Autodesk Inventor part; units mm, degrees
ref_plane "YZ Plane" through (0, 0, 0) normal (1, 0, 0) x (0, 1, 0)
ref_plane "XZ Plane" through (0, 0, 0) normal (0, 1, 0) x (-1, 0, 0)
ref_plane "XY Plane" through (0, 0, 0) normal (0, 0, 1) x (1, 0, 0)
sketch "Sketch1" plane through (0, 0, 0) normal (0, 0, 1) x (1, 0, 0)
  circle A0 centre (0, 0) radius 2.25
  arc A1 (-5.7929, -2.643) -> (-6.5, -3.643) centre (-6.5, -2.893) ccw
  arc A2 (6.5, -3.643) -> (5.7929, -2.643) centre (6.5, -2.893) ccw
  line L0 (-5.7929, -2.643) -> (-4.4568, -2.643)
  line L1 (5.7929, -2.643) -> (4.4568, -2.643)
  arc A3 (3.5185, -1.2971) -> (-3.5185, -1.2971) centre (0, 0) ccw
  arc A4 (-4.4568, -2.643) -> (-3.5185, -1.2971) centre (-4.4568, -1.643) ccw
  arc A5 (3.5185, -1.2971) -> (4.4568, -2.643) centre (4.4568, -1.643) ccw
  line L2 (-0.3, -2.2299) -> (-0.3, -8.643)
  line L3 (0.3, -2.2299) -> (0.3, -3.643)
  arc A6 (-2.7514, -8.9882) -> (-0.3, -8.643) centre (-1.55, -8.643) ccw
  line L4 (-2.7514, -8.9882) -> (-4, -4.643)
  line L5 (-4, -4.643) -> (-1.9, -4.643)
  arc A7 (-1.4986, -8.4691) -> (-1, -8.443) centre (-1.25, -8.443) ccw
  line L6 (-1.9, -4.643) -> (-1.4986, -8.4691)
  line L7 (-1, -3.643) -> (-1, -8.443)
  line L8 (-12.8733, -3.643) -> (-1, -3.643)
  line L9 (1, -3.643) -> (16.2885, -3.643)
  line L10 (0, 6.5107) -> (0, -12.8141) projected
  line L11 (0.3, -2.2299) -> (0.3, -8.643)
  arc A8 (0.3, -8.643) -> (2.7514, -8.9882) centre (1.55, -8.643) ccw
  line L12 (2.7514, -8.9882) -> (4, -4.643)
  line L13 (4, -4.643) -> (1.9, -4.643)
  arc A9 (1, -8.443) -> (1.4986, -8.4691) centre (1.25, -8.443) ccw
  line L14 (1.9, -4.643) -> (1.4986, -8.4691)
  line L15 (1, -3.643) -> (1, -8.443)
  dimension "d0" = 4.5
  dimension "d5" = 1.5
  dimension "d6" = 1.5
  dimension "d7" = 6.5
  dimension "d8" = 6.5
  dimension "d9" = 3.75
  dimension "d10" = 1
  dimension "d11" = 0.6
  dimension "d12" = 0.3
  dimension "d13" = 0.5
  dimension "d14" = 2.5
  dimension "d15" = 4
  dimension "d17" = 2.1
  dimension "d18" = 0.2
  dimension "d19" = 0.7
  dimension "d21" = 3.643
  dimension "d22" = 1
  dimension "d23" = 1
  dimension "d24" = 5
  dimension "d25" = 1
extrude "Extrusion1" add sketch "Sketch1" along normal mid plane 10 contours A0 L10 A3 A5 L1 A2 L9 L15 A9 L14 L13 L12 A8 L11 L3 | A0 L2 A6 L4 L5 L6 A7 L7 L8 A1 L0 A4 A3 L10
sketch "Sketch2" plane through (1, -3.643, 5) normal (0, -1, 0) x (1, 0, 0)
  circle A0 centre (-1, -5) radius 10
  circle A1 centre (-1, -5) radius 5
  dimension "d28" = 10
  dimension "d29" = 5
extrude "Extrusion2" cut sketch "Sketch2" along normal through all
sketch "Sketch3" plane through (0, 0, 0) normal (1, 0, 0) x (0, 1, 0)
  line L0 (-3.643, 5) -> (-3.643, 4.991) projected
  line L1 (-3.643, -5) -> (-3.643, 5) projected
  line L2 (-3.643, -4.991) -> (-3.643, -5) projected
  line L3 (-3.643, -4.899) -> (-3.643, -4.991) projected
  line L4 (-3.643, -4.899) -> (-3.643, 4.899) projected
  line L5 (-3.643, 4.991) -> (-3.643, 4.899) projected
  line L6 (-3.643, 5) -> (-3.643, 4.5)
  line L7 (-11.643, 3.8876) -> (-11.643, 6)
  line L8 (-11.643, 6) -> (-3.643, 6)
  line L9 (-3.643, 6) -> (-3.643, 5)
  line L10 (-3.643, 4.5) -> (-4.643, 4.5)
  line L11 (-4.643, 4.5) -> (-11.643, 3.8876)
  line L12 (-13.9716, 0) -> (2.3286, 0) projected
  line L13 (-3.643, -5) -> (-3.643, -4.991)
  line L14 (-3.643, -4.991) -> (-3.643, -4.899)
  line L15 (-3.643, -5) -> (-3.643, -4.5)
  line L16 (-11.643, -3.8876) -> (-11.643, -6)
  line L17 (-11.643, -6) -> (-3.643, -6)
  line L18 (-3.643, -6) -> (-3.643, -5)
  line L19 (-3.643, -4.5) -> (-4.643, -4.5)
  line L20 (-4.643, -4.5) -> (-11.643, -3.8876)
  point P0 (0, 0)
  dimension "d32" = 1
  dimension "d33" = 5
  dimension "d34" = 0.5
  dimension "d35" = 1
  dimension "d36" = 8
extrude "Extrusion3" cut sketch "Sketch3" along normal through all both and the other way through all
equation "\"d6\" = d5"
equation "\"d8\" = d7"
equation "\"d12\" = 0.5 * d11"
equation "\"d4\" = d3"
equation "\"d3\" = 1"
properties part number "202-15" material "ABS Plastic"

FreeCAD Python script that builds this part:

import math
import FreeCAD as App
import Part
import Sketcher
Q = App.Units.Quantity

doc = App.newDocument("Part")
body = doc.addObject("PartDesign::Body", "Body")

# Sketch on XY plane
sketch1 = body.newObject("Sketcher::SketchObject", "Sketch")
sketch1.AttachmentSupport = (doc.getObject("XY_Plane"), [""])
sketch1.MapMode = "FlatFace"
sketch1.addGeometry([
    Part.LineSegment(App.Vector(0.3, -2.23, 0), App.Vector(0.3, -8.64, 0)),  # 0
    Part.ArcOfCircle(Part.Circle(App.Vector(1.55, -8.64, 0), App.Vector(0, 0, 1), 1.25), math.radians(180), math.radians(344)),  # 1
    Part.LineSegment(App.Vector(2.75, -8.99, 0), App.Vector(4, -4.64, 0)),  # 2
    Part.LineSegment(App.Vector(4, -4.64, 0), App.Vector(1.9, -4.64, 0)),  # 3
    Part.LineSegment(App.Vector(1.9, -4.64, 0), App.Vector(1.5, -8.47, 0)),  # 4
    Part.ArcOfCircle(Part.Circle(App.Vector(1.25, -8.44, 0), App.Vector(0, 0, 1), 0.25), math.radians(180), math.radians(354)),  # 5
    Part.LineSegment(App.Vector(1, -8.44, 0), App.Vector(1, -3.64, 0)),  # 6
    Part.LineSegment(App.Vector(1, -3.64, 0), App.Vector(6.5, -3.64, 0)),  # 7
    Part.ArcOfCircle(Part.Circle(App.Vector(6.5, -2.89, 0), App.Vector(0, 0, 1), 0.75), math.radians(-90), math.radians(161)),  # 8
    Part.LineSegment(App.Vector(5.79, -2.64, 0), App.Vector(4.46, -2.64, 0)),  # 9
    Part.ArcOfCircle(Part.Circle(App.Vector(4.46, -1.64, 0), App.Vector(0, 0, 1), 1), math.radians(160), math.radians(270)),  # 10
    Part.ArcOfCircle(Part.Circle(App.Vector(0, 0, 0), App.Vector(0, 0, 1), 3.75), math.radians(-20), math.radians(200)),  # 11
    Part.ArcOfCircle(Part.Circle(App.Vector(-4.46, -1.64, 0), App.Vector(0, 0, 1), 1), math.radians(-90), math.radians(20)),  # 12
    Part.LineSegment(App.Vector(-4.46, -2.64, 0), App.Vector(-5.79, -2.64, 0)),  # 13
    Part.ArcOfCircle(Part.Circle(App.Vector(-6.5, -2.89, 0), App.Vector(0, 0, 1), 0.75), math.radians(19), math.radians(270)),  # 14
    Part.LineSegment(App.Vector(-6.5, -3.64, 0), App.Vector(-1, -3.64, 0)),  # 15
    Part.LineSegment(App.Vector(-1, -3.64, 0), App.Vector(-1, -8.44, 0)),  # 16
    Part.ArcOfCircle(Part.Circle(App.Vector(-1.25, -8.44, 0), App.Vector(0, 0, 1), 0.25), math.radians(-174), math.radians(0)),  # 17
    Part.LineSegment(App.Vector(-1.5, -8.47, 0), App.Vector(-1.9, -4.64, 0)),  # 18
    Part.LineSegment(App.Vector(-1.9, -4.64, 0), App.Vector(-4, -4.64, 0)),  # 19
    Part.LineSegment(App.Vector(-4, -4.64, 0), App.Vector(-2.75, -8.99, 0)),  # 20
    Part.ArcOfCircle(Part.Circle(App.Vector(-1.55, -8.64, 0), App.Vector(0, 0, 1), 1.25), math.radians(-164), math.radians(0)),  # 21
    Part.LineSegment(App.Vector(-0.3, -8.64, 0), App.Vector(-0.3, -2.23, 0)),  # 22
    Part.ArcOfCircle(Part.Circle(App.Vector(0, 0, 0), App.Vector(0, 0, 1), 2.25), math.radians(-82), math.radians(262)),  # 23
], False)
sketch1.addConstraint([
    Sketcher.Constraint("Tangent", 0, 2, 1, 1),
    Sketcher.Constraint("Tangent", 1, 2, 2, 1),
    Sketcher.Constraint("Coincident", 2, 2, 3, 1),
    Sketcher.Constraint("Coincident", 3, 2, 4, 1),
    Sketcher.Constraint("Tangent", 4, 2, 5, 2),
    Sketcher.Constraint("Tangent", 5, 1, 6, 1),
    Sketcher.Constraint("Coincident", 6, 2, 7, 1),
    Sketcher.Constraint("Tangent", 7, 2, 8, 1),
    Sketcher.Constraint("Coincident", 8, 2, 9, 1),
    Sketcher.Constraint("Tangent", 9, 2, 10, 2),
    Sketcher.Constraint("Tangent", 10, 1, 11, 1),
    Sketcher.Constraint("Tangent", 11, 2, 12, 2),
    Sketcher.Constraint("Tangent", 12, 1, 13, 1),
    Sketcher.Constraint("Coincident", 13, 2, 14, 1),
    Sketcher.Constraint("Tangent", 14, 2, 15, 1),
    Sketcher.Constraint("Coincident", 15, 2, 16, 1),
    Sketcher.Constraint("Tangent", 16, 2, 17, 2),
    Sketcher.Constraint("Tangent", 17, 1, 18, 1),
    Sketcher.Constraint("Coincident", 18, 2, 19, 1),
    Sketcher.Constraint("Coincident", 19, 2, 20, 1),
    Sketcher.Constraint("Tangent", 20, 2, 21, 1),
    Sketcher.Constraint("Tangent", 21, 2, 22, 1),
    Sketcher.Constraint("Coincident", 22, 2, 23, 2),
    Sketcher.Constraint("Coincident", 23, 1, 0, 1),
    Sketcher.Constraint("Vertical", 0),
    Sketcher.Constraint("Horizontal", 3),
    Sketcher.Constraint("Vertical", 6),
    Sketcher.Constraint("Horizontal", 7),
    Sketcher.Constraint("Horizontal", 9),
    Sketcher.Constraint("Horizontal", 13),
    Sketcher.Constraint("Horizontal", 15),
    Sketcher.Constraint("Vertical", 16),
    Sketcher.Constraint("Horizontal", 19),
    Sketcher.Constraint("Vertical", 22),
    Sketcher.Constraint("Coincident", 11, 3, -1, 1),
    Sketcher.Constraint("Coincident", 23, 3, -1, 1),
    Sketcher.Constraint("Equal", 10, 12),
    Sketcher.Constraint("Equal", 8, 14),
    Sketcher.Constraint("Equal", 5, 17),
    Sketcher.Constraint("Equal", 1, 21),
    Sketcher.Constraint("Symmetric", 8, 3, 14, 3, -2),
    Sketcher.Constraint("Symmetric", 5, 3, 17, 3, -2),
    Sketcher.Constraint("Symmetric", 1, 3, 21, 3, -2),
    Sketcher.Constraint("Symmetric", 3, 2, 18, 2, -2),
    Sketcher.Constraint("Horizontal", 10, 3, 12, 3),
    Sketcher.Constraint("Horizontal", 1, 2, 20, 2),
    Sketcher.Constraint("Radius", 10, Q("1 mm")),
    Sketcher.Constraint("Radius", 1, Q("1.25 mm")),
    Sketcher.Constraint("Radius", 5, Q("0.25 mm")),
    Sketcher.Constraint("Radius", 8, Q("0.75 mm")),
    Sketcher.Constraint("Radius", 11, Q("3.75 mm")),
    Sketcher.Constraint("Radius", 23, Q("2.25 mm")),
    Sketcher.Constraint("DistanceX", 3, 2, 3, 1, Q("2.1 mm")),
    Sketcher.Constraint("DistanceX", -1, 1, 2, 2, Q("4 mm")),
    Sketcher.Constraint("DistanceX", -1, 1, 5, 1, Q("1 mm")),
    Sketcher.Constraint("DistanceY", 1, 3, 2, 2, Q("4 mm")),
    Sketcher.Constraint("DistanceY", 3, 2, 6, 2, Q("1 mm")),
    Sketcher.Constraint("DistanceY", 7, 2, 8, 2, Q("1 mm")),
    Sketcher.Constraint("DistanceX", -1, 1, 8, 3, Q("6.5 mm")),
    Sketcher.Constraint("DistanceX", -1, 1, 0, 2, Q("0.3 mm")),
    Sketcher.Constraint("DistanceY", 1, 3, 5, 3, Q("0.2 mm")),
    Sketcher.Constraint("DistanceY", 6, 2, -1, 1, Q("3.643 mm")),
])
pad1 = body.newObject("PartDesign::Pad", "Pad")
pad1.Profile = sketch1
pad1.Length = 10
pad1.Midplane = True

# Sketch on XZ plane
sketch2 = body.newObject("Sketcher::SketchObject", "Sketch001")
sketch2.AttachmentSupport = (doc.getObject("XZ_Plane"), [""])
sketch2.MapMode = "FlatFace"
sketch2.AttachmentOffset = App.Placement(App.Vector(0, 0, 3.643), App.Rotation())
sketch2.addGeometry([
    Part.Circle(App.Vector(0, 0, 0), App.Vector(0, 0, 1), 10),
    Part.Circle(App.Vector(0, 0, 0), App.Vector(0, 0, 1), 5),
], False)
sketch2.addConstraint([
    Sketcher.Constraint("Coincident", 0, 3, -1, 1),
    Sketcher.Constraint("Coincident", 1, 3, -1, 1),
    Sketcher.Constraint("Diameter", 0, Q("20 mm")),
    Sketcher.Constraint("Diameter", 1, Q("10 mm")),
])
pocket1 = body.newObject("PartDesign::Pocket", "Pocket")
pocket1.Profile = sketch2
pocket1.Type = "ThroughAll"
pocket1.Reversed = True

# Sketch on YZ plane
sketch3 = body.newObject("Sketcher::SketchObject", "Sketch002")
sketch3.AttachmentSupport = (doc.getObject("YZ_Plane"), [""])
sketch3.MapMode = "FlatFace"
sketch3.addGeometry([
    Part.LineSegment(App.Vector(-3.6, -6, 0), App.Vector(-3.6, -4.5, 0)),  # 0
    Part.LineSegment(App.Vector(-3.6, -4.5, 0), App.Vector(-4.6, -4.5, 0)),  # 1
    Part.LineSegment(App.Vector(-4.6, -4.5, 0), App.Vector(-11.6, -3.9, 0)),  # 2
    Part.LineSegment(App.Vector(-11.6, -3.9, 0), App.Vector(-11.6, -6, 0)),  # 3
    Part.LineSegment(App.Vector(-11.6, -6, 0), App.Vector(-3.6, -6, 0)),  # 4
    Part.LineSegment(App.Vector(-3.6, 4.5, 0), App.Vector(-3.6, 6, 0)),  # 5
    Part.LineSegment(App.Vector(-3.6, 6, 0), App.Vector(-11.6, 6, 0)),  # 6
    Part.LineSegment(App.Vector(-11.6, 6, 0), App.Vector(-11.6, 3.9, 0)),  # 7
    Part.LineSegment(App.Vector(-11.6, 3.9, 0), App.Vector(-4.6, 4.5, 0)),  # 8
    Part.LineSegment(App.Vector(-4.6, 4.5, 0), App.Vector(-3.6, 4.5, 0)),  # 9
], False)
sketch3.addConstraint([
    Sketcher.Constraint("Coincident", 0, 2, 1, 1),
    Sketcher.Constraint("Coincident", 1, 2, 2, 1),
    Sketcher.Constraint("Coincident", 2, 2, 3, 1),
    Sketcher.Constraint("Coincident", 3, 2, 4, 1),
    Sketcher.Constraint("Coincident", 4, 2, 0, 1),
    Sketcher.Constraint("Coincident", 5, 2, 6, 1),
    Sketcher.Constraint("Coincident", 6, 2, 7, 1),
    Sketcher.Constraint("Coincident", 7, 2, 8, 1),
    Sketcher.Constraint("Coincident", 8, 2, 9, 1),
    Sketcher.Constraint("Coincident", 9, 2, 5, 1),
    Sketcher.Constraint("Vertical", 0),
    Sketcher.Constraint("Horizontal", 1),
    Sketcher.Constraint("Vertical", 3),
    Sketcher.Constraint("Horizontal", 4),
    Sketcher.Constraint("Vertical", 5),
    Sketcher.Constraint("Horizontal", 6),
    Sketcher.Constraint("Vertical", 7),
    Sketcher.Constraint("Horizontal", 9),
    Sketcher.Constraint("Symmetric", 4, 2, 5, 2, -1),
    Sketcher.Constraint("Symmetric", 2, 2, 7, 2, -1),
    Sketcher.Constraint("Symmetric", 1, 2, 8, 2, -1),
    Sketcher.Constraint("DistanceX", 1, 2, 1, 1, Q("1 mm")),
    Sketcher.Constraint("DistanceX", 4, 1, 4, 2, Q("8 mm")),
    Sketcher.Constraint("Angle", 8, Q("4.9998 deg")),
    Sketcher.Constraint("DistanceY", 0, 1, 0, 2, Q("1.5 mm")),
    Sketcher.Constraint("DistanceY", 3, 2, -1, 1, Q("6 mm")),
    Sketcher.Constraint("DistanceX", 0, 2, -1, 1, Q("3.643 mm")),
])
pocket2 = body.newObject("PartDesign::Pocket", "Pocket001")
pocket2.Profile = sketch3
pocket2.Type = "ThroughAll"
pocket2.Midplane = True

doc.recompute()
